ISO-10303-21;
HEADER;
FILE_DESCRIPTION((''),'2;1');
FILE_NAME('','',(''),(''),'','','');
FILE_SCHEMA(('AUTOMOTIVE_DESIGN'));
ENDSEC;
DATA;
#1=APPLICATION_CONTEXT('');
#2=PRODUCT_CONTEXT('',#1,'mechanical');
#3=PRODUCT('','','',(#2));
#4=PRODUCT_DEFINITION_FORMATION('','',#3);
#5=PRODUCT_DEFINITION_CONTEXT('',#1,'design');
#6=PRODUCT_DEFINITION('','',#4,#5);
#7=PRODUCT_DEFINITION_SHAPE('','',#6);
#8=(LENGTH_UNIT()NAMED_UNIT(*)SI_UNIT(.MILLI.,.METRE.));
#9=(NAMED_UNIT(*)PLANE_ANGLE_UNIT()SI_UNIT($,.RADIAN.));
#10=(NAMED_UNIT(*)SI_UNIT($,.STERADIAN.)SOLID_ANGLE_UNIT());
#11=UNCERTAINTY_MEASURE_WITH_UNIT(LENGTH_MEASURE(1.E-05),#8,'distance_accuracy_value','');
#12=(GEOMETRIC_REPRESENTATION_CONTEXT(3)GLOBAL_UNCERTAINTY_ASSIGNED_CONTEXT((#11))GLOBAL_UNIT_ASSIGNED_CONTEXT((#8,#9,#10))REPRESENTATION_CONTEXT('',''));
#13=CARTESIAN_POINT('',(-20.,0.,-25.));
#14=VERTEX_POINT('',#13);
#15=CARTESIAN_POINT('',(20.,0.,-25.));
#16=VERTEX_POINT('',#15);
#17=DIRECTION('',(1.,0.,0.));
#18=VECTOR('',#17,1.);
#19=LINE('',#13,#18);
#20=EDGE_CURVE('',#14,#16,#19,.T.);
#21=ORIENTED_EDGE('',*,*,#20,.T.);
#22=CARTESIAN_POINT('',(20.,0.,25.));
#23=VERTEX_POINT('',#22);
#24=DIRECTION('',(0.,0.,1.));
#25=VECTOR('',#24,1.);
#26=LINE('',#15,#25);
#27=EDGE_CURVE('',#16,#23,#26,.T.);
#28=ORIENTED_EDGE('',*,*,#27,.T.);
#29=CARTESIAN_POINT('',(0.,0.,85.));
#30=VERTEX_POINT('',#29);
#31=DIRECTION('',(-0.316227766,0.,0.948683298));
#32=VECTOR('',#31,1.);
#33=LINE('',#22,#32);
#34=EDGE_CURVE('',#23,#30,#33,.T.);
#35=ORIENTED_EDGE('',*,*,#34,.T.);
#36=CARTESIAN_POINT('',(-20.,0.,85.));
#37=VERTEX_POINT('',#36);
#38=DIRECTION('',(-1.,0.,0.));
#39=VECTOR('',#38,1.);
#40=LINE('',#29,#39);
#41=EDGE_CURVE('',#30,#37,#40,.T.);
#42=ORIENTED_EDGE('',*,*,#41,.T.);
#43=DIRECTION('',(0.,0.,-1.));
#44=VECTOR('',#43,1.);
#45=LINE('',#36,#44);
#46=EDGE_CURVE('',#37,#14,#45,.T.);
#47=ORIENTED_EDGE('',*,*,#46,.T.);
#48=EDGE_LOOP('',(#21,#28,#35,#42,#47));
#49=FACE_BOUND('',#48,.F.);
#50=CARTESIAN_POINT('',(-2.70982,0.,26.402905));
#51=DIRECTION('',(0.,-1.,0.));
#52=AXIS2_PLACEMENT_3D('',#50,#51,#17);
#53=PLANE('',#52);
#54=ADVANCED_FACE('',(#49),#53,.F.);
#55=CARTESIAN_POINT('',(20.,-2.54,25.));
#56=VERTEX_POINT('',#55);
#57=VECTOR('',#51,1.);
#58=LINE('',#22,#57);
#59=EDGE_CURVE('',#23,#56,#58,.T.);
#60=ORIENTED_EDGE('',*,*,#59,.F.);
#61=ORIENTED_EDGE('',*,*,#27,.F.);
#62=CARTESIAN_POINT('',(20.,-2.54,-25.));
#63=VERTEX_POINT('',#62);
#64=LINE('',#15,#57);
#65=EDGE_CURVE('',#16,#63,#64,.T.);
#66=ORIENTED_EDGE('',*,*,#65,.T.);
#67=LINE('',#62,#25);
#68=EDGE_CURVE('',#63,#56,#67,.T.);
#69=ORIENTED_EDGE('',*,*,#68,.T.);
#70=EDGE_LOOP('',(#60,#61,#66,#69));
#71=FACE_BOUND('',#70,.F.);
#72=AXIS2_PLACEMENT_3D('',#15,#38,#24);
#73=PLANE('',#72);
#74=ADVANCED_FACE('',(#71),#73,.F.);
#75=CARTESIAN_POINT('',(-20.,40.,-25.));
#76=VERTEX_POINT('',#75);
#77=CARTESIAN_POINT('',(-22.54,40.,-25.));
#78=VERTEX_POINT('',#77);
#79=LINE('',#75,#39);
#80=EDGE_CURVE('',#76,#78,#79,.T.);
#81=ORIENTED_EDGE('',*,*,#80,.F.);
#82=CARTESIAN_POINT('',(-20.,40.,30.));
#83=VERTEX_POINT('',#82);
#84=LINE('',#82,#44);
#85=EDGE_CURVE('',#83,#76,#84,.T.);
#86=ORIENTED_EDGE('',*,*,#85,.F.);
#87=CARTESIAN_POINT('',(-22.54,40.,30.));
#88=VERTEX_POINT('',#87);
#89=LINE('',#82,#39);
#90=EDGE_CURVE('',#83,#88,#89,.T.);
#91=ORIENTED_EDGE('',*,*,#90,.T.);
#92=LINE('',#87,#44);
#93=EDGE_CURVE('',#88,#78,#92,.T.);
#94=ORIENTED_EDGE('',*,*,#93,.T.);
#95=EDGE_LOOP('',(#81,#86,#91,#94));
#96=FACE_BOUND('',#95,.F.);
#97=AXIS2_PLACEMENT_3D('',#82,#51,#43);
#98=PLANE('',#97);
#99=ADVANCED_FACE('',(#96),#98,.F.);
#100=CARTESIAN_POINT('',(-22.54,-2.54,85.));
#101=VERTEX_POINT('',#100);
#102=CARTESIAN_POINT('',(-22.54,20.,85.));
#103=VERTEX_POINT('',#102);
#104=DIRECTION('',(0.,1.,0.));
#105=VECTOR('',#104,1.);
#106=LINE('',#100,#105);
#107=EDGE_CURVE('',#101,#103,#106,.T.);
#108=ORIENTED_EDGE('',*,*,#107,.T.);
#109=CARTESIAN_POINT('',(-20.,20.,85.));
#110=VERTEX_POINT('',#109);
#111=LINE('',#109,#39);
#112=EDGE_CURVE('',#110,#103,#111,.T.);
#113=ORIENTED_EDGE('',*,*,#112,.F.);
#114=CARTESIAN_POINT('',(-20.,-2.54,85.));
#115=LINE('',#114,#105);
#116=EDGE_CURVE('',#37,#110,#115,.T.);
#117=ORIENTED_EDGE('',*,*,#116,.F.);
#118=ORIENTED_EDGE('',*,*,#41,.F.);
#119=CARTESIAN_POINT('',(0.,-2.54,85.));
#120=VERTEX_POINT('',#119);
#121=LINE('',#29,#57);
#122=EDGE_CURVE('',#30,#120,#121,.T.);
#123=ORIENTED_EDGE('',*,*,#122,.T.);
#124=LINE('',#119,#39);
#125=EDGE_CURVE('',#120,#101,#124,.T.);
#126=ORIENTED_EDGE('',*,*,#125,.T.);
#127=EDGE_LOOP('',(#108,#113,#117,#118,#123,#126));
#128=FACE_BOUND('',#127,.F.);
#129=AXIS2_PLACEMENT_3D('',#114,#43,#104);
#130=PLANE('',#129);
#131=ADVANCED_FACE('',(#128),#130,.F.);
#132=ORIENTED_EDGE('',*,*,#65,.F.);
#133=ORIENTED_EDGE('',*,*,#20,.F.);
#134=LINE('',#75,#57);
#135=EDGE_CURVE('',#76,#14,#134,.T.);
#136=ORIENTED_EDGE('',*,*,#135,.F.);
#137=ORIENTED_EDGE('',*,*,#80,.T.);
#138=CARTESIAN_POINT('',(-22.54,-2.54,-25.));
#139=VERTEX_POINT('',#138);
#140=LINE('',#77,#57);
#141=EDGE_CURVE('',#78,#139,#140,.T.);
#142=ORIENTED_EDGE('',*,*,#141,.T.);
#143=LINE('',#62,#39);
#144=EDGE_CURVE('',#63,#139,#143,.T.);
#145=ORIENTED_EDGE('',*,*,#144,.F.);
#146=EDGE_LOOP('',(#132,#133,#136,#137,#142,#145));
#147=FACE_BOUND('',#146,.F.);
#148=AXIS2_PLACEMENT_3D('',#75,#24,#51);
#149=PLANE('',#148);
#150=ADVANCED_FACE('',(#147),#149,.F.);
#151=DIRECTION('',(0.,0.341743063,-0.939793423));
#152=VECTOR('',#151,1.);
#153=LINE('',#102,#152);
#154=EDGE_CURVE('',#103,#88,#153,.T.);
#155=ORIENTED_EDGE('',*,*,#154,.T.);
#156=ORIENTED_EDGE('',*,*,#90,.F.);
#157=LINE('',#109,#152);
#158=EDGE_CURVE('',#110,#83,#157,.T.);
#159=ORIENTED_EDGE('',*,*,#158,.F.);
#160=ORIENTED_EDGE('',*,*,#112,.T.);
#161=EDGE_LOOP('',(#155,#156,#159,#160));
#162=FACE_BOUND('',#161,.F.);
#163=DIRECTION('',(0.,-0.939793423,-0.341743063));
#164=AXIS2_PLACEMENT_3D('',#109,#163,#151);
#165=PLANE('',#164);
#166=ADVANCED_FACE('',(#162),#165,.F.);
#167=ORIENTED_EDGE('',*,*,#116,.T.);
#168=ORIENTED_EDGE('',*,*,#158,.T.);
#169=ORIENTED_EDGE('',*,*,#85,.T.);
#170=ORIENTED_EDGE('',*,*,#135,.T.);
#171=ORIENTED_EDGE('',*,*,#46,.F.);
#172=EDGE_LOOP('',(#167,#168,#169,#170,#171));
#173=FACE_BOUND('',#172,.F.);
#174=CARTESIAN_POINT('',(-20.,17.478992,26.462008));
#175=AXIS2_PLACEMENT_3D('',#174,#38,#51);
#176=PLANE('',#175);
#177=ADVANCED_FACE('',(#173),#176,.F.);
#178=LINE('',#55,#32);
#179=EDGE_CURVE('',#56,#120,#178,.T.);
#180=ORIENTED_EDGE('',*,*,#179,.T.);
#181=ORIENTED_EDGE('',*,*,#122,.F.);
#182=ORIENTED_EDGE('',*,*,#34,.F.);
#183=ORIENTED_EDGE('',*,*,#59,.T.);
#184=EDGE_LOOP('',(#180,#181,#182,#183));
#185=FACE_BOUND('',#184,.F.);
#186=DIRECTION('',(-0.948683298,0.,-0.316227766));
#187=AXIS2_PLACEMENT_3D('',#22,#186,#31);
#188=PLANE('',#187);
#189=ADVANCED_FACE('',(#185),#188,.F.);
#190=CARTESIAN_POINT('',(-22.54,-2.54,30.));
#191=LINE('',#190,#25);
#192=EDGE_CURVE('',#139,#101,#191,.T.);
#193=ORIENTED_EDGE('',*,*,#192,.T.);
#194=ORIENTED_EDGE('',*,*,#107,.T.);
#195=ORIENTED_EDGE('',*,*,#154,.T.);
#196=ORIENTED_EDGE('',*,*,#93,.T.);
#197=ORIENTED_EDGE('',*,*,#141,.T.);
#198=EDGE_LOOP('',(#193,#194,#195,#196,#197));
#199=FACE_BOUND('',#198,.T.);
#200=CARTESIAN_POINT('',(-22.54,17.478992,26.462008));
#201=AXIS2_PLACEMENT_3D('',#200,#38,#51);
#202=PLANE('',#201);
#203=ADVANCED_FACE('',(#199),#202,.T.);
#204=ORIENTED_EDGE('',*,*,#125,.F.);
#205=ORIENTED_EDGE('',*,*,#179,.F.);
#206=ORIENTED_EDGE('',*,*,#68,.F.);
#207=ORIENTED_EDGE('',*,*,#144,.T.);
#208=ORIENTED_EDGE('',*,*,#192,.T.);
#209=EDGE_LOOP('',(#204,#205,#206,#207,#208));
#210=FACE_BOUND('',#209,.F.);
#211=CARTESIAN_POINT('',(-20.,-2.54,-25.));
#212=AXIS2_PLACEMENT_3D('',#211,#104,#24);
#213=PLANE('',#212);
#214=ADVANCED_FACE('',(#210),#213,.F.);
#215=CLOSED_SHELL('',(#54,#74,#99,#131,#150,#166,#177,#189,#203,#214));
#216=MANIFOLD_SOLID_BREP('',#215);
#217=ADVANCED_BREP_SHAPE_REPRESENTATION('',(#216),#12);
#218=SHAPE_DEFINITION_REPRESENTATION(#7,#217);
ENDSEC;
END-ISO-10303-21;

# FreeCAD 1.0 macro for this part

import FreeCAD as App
import Part
import Sketcher
from FreeCAD import Vector
Q = App.Units.Quantity


def add_polygon(sketch, points):
    """Adds a closed chain of lines whose ends are joined by coincident constraints."""
    first, n = sketch.GeometryCount, len(points)
    for a, b in zip(points, points[1:] + points[:1]):
        sketch.addGeometry(Part.LineSegment(App.Vector(*a, 0), App.Vector(*b, 0)), False)
    for i in range(n):
        sketch.addConstraint(Sketcher.Constraint("Coincident", first + i, 2, first + (i + 1) % n, 1))

doc = App.newDocument("Part")
body = doc.addObject("PartDesign::Body", "Body")

# Sketch on XZ plane
sketch1 = body.newObject("Sketcher::SketchObject", "Sketch")
sketch1.AttachmentSupport = (doc.getObject("XZ_Plane"), [""])
sketch1.MapMode = "FlatFace"
add_polygon(sketch1, [(-20, -25), (20, -25), (20, 25), (0, 85), (-20, 85)])  # lines 0-4
sketch1.addConstraint([
    Sketcher.Constraint("Horizontal", 0),
    Sketcher.Constraint("Vertical", 1),
    Sketcher.Constraint("Horizontal", 3),
    Sketcher.Constraint("Vertical", 4),
    Sketcher.Constraint("Symmetric", 1, 2, 4, 2, -1, 1),
    Sketcher.Constraint("PointOnObject", 2, 2, -2),
    Sketcher.Constraint("DistanceX", 0, 1, 0, 2, Q("40 mm")),
    Sketcher.Constraint("DistanceY", 1, 1, 1, 2, Q("50 mm")),
    Sketcher.Constraint("DistanceY", 4, 2, 4, 1, Q("110 mm")),
])
pad1 = body.newObject("PartDesign::Pad", "Pad")
pad1.Profile = sketch1
pad1.Length = 2.54

# Sketch on YZ plane
sketch2 = body.newObject("Sketcher::SketchObject", "Sketch001")
sketch2.AttachmentSupport = (doc.getObject("YZ_Plane"), [""])
sketch2.MapMode = "FlatFace"
sketch2.AttachmentOffset = App.Placement(Vector(0, 0, -20), App.Rotation())
add_polygon(sketch2, [(40, -25), (-3, -25), (-3, 85), (20, 85), (40, 30)])  # lines 0-4
sketch2.addConstraint([
    Sketcher.Constraint("Horizontal", 0),
    Sketcher.Constraint("Vertical", 1),
    Sketcher.Constraint("Horizontal", 2),
    Sketcher.Constraint("Vertical", 4),
    Sketcher.Constraint("DistanceY", 1, 1, 1, 2, Q("110 mm")),
    Sketcher.Constraint("DistanceY", 4, 2, 4, 1, Q("55 mm")),
    Sketcher.Constraint("DistanceY", 0, 2, -1, 1, Q("25 mm")),
    Sketcher.Constraint("DistanceX", -1, 1, 2, 2, Q("20 mm")),
    Sketcher.Constraint("DistanceX", -1, 1, 3, 2, Q("40 mm")),
    Sketcher.Constraint("DistanceX", 0, 2, 0, 1, Q("42.54 mm")),
])
pad2 = body.newObject("PartDesign::Pad", "Pad001")
pad2.Profile = sketch2
pad2.Length = 2.54
pad2.Reversed = True

doc.recompute()
